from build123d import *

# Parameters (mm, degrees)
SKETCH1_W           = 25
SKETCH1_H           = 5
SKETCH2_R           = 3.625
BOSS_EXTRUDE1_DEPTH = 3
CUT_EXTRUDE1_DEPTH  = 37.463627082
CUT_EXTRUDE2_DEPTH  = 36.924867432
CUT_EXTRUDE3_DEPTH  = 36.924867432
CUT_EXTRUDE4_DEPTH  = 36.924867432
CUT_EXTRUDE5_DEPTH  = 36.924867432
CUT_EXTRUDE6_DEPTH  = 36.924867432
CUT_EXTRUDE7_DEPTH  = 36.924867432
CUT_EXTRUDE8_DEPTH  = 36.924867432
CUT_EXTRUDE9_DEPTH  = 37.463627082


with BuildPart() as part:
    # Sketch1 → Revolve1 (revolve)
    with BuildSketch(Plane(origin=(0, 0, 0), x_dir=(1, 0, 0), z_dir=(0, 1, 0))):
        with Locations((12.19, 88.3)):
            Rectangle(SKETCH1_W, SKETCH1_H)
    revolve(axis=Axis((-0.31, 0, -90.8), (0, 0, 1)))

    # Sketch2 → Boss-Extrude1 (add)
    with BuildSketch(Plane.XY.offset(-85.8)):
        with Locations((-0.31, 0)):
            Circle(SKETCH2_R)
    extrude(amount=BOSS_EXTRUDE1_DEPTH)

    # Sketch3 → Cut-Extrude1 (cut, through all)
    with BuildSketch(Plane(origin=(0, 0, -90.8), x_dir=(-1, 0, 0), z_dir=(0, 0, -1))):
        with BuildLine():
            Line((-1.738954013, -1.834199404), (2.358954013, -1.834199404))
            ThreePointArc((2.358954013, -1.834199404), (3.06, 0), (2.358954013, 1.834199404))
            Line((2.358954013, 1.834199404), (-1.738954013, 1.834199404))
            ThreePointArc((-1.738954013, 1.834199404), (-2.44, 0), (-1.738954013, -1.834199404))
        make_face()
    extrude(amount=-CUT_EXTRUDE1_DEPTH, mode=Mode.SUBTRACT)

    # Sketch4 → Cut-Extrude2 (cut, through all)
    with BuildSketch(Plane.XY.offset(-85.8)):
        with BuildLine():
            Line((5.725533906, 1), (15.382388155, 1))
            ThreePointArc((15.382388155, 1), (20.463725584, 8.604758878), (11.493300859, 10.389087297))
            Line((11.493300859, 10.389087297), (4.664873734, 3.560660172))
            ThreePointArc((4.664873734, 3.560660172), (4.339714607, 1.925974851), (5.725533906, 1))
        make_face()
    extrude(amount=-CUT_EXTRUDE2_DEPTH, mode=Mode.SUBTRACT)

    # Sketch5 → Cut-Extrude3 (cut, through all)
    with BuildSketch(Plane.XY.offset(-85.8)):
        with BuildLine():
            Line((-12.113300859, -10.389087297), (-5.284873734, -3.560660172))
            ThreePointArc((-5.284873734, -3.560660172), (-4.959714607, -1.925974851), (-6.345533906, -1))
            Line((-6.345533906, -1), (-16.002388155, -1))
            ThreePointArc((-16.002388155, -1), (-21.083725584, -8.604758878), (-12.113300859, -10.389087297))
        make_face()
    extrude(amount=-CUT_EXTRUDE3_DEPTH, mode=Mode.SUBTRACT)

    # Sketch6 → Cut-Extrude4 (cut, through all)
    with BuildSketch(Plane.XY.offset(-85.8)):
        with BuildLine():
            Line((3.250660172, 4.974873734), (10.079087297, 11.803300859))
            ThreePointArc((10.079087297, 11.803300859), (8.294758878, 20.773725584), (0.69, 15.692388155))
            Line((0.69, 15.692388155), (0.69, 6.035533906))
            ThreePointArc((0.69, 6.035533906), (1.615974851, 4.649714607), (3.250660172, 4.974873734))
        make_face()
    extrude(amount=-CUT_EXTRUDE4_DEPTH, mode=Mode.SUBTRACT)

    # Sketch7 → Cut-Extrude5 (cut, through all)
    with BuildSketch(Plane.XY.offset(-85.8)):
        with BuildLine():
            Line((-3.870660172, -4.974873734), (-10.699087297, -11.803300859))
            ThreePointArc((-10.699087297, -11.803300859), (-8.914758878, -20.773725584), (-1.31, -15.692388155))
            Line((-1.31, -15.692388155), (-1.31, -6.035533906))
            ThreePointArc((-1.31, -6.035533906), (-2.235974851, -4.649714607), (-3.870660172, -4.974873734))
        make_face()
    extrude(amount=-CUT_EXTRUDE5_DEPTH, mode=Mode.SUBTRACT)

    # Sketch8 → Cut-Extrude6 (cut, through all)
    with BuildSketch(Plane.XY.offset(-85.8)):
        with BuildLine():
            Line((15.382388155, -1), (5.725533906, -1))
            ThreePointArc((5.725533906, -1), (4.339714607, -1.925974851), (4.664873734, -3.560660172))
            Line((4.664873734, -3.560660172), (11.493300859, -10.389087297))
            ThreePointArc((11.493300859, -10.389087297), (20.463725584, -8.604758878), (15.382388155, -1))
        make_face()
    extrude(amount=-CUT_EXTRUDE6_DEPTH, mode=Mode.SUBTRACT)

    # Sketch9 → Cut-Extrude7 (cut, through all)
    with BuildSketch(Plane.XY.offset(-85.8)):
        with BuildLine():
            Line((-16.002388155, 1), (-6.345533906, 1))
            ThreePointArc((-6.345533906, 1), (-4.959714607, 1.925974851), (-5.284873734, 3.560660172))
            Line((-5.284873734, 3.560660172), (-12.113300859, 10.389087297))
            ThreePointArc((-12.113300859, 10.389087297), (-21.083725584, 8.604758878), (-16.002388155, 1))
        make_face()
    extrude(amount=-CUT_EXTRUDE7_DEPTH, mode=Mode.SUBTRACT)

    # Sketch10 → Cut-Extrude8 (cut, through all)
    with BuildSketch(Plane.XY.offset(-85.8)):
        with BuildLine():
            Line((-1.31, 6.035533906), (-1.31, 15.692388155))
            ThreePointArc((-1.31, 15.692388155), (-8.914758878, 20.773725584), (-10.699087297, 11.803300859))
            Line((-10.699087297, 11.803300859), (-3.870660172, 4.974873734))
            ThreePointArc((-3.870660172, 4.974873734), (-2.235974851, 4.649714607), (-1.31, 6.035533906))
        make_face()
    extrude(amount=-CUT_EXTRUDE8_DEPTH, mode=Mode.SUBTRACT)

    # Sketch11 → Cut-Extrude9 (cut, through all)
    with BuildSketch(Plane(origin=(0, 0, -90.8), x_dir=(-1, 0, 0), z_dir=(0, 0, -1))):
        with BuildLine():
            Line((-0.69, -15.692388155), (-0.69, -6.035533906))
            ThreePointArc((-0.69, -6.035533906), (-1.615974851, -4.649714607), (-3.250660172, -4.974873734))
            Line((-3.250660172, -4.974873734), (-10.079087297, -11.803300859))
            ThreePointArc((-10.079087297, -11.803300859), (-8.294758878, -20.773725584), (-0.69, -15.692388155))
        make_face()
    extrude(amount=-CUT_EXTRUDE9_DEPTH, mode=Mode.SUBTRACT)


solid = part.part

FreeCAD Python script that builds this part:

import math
import FreeCAD as App
import Part
import Sketcher

V = App.Vector
Q = App.Units.Quantity


def add_polygon(sketch, points):
    """Adds a closed chain of lines whose ends are joined by coincident constraints."""
    first, n = sketch.GeometryCount, len(points)
    for a, b in zip(points, points[1:] + points[:1]):
        sketch.addGeometry(Part.LineSegment(App.Vector(*a, 0), App.Vector(*b, 0)), False)
    for i in range(n):
        sketch.addConstraint(Sketcher.Constraint("Coincident", first + i, 2, first + (i + 1) % n, 1))

doc = App.newDocument("Part")
body = doc.addObject("PartDesign::Body", "Body")

# Sketch on XZ plane
sketch1 = body.newObject("Sketcher::SketchObject", "Sketch")
sketch1.AttachmentSupport = (doc.getObject("XZ_Plane"), [""])
sketch1.MapMode = "FlatFace"
add_polygon(sketch1, [(-0.31, -90.8), (-0.31, -85.8), (24.69, -85.8), (24.69, -90.8)])  # lines 0-3
sketch1.addGeometry(Part.LineSegment(V(-0.31, -90.8, 0), V(-0.31, -85.8, 0)), True)  # axis
sketch1.addConstraint([
    Sketcher.Constraint("Vertical", 0),
    Sketcher.Constraint("Horizontal", 1),
    Sketcher.Constraint("Vertical", 2),
    Sketcher.Constraint("Horizontal", 3),
    Sketcher.Constraint("Vertical", 4),
    Sketcher.Constraint("Coincident", 4, 1, 3, 2),
    Sketcher.Constraint("Horizontal", 1, 2, 4, 2),
    Sketcher.Constraint("DistanceX", 1, 1, 1, 2, Q("25 mm")),
    Sketcher.Constraint("DistanceY", 0, 1, 0, 2, Q("5 mm")),
    Sketcher.Constraint("DistanceY", 0, 2, -1, 1, Q("85.8 mm")),
    Sketcher.Constraint("DistanceX", 0, 2, -1, 1, Q("0.31 mm")),
])
revolution = body.newObject("PartDesign::Revolution", "Revolution")
revolution.Profile = sketch1
revolution.ReferenceAxis = (sketch1, ["Axis0"])
revolution.Angle = 360

# Sketch on XY plane
sketch2 = body.newObject("Sketcher::SketchObject", "Sketch001")
sketch2.AttachmentSupport = (doc.getObject("XY_Plane"), [""])
sketch2.MapMode = "FlatFace"
sketch2.AttachmentOffset = App.Placement(V(0, 0, -85.8), App.Rotation())
sketch2.addGeometry(Part.Circle(V(-0.31, 0, 0), V(0, 0, 1), 3.625), False)
sketch2.addConstraint([
    Sketcher.Constraint("PointOnObject", 0, 3, -1),
    Sketcher.Constraint("Diameter", 0, Q("7.25 mm")),
    Sketcher.Constraint("DistanceX", 0, 3, -1, 1, Q("0.31 mm")),
])
pad1 = body.newObject("PartDesign::Pad", "Pad")
pad1.Profile = sketch2
pad1.Length = 3

# Sketch on XY plane
sketch3 = body.newObject("Sketcher::SketchObject", "Sketch002")
sketch3.AttachmentSupport = (doc.getObject("XY_Plane"), [""])
sketch3.MapMode = "FlatFace"
sketch3.AttachmentOffset = App.Placement(V(0, 0, -90.8), App.Rotation())
sketch3.addGeometry([
    Part.LineSegment(V(1.738954, -1.834199, 0), V(-2.358954, -1.834199, 0)),
    Part.ArcOfCircle(Part.Circle(V(-0.31, 0, 0), V(0, 0, 1), 2.75), math.radians(138.165471), math.radians(221.834529)),
    Part.LineSegment(V(-2.358954, 1.834199, 0), V(1.738954, 1.834199, 0)),
    Part.ArcOfCircle(Part.Circle(V(-0.31, 0, 0), V(0, 0, 1), 2.75), math.radians(-41.834529), math.radians(41.834529)),
], False)
sketch3.addConstraint([
    Sketcher.Constraint("Coincident", 0, 2, 1, 2),
    Sketcher.Constraint("Coincident", 1, 1, 2, 1),
    Sketcher.Constraint("Coincident", 2, 2, 3, 2),
    Sketcher.Constraint("Coincident", 3, 1, 0, 1),
    Sketcher.Constraint("Horizontal", 0),
    Sketcher.Constraint("Horizontal", 2),
    Sketcher.Constraint("Coincident", 3, 3, 1, 3),
    Sketcher.Constraint("Equal", 1, 3),
    Sketcher.Constraint("Symmetric", 0, 2, 1, 1, -1),
    Sketcher.Constraint("Radius", 1, Q("2.75 mm")),
    Sketcher.Constraint("DistanceX", 1, 3, -1, 1, Q("0.31 mm")),
    Sketcher.Constraint("DistanceX", 0, 2, 0, 1, Q("4.097908 mm")),
])
pocket1 = body.newObject("PartDesign::Pocket", "Pocket")
pocket1.Profile = sketch3
pocket1.Type = "ThroughAll"
pocket1.Reversed = True

# Sketch on XY plane
sketch4 = body.newObject("Sketcher::SketchObject", "Sketch003")
sketch4.AttachmentSupport = (doc.getObject("XY_Plane"), [""])
sketch4.MapMode = "FlatFace"
sketch4.AttachmentOffset = App.Placement(V(0, 0, -85.8), App.Rotation())
sketch4.addGeometry([
    Part.LineSegment(V(5.725534, 1, 0), V(15.382388, 1, 0)),
    Part.ArcOfCircle(Part.Circle(V(15.382388, 6.5, 0), V(0, 0, 1), 5.5), math.radians(-90), math.radians(135)),
    Part.LineSegment(V(11.493301, 10.389087, 0), V(4.664874, 3.56066, 0)),
    Part.ArcOfCircle(Part.Circle(V(5.725534, 2.5, 0), V(0, 0, 1), 1.5), math.radians(135), math.radians(270)),
], False)
sketch4.addConstraint([
    Sketcher.Constraint("Tangent", 0, 2, 1, 1),
    Sketcher.Constraint("Tangent", 1, 2, 2, 1),
    Sketcher.Constraint("Tangent", 2, 2, 3, 1),
    Sketcher.Constraint("Tangent", 3, 2, 0, 1),
    Sketcher.Constraint("Horizontal", 0),
    Sketcher.Constraint("Radius", 1, Q("5.5 mm")),
    Sketcher.Constraint("Radius", 3, Q("1.5 mm")),
    Sketcher.Constraint("Angle", 2, Q("-135 deg")),
    Sketcher.Constraint("DistanceY", -1, 1, 0, 2, Q("1 mm")),
    Sketcher.Constraint("DistanceX", -1, 1, 1, 2, Q("11.493301 mm")),
])
pocket2 = body.newObject("PartDesign::Pocket", "Pocket001")
pocket2.Profile = sketch4
pocket2.Type = "ThroughAll"

# Sketch on XY plane
sketch5 = body.newObject("Sketcher::SketchObject", "Sketch004")
sketch5.AttachmentSupport = (doc.getObject("XY_Plane"), [""])
sketch5.MapMode = "FlatFace"
sketch5.AttachmentOffset = App.Placement(V(0, 0, -85.8), App.Rotation())
sketch5.addGeometry([
    Part.LineSegment(V(-12.113301, -10.389087, 0), V(-5.284874, -3.56066, 0)),
    Part.ArcOfCircle(Part.Circle(V(-6.345534, -2.5, 0), V(0, 0, 1), 1.5), math.radians(-45), math.radians(90)),
    Part.LineSegment(V(-6.345534, -1, 0), V(-16.002388, -1, 0)),
    Part.ArcOfCircle(Part.Circle(V(-16.002388, -6.5, 0), V(0, 0, 1), 5.5), math.radians(90), math.radians(315)),
], False)
sketch5.addConstraint([
    Sketcher.Constraint("Tangent", 0, 2, 1, 1),
    Sketcher.Constraint("Tangent", 1, 2, 2, 1),
    Sketcher.Constraint("Tangent", 2, 2, 3, 1),
    Sketcher.Constraint("Tangent", 3, 2, 0, 1),
    Sketcher.Constraint("Horizontal", 2),
    Sketcher.Constraint("Radius", 1, Q("1.5 mm")),
    Sketcher.Constraint("Radius", 3, Q("5.5 mm")),
    Sketcher.Constraint("Angle", 0, Q("45 deg")),
    Sketcher.Constraint("DistanceY", 1, 2, -1, 1, Q("1 mm")),
    Sketcher.Constraint("DistanceX", 3, 2, -1, 1, Q("12.113301 mm")),
])
pocket3 = body.newObject("PartDesign::Pocket", "Pocket002")
pocket3.Profile = sketch5
pocket3.Type = "ThroughAll"

# Sketch on XY plane
sketch6 = body.newObject("Sketcher::SketchObject", "Sketch005")
sketch6.AttachmentSupport = (doc.getObject("XY_Plane"), [""])
sketch6.MapMode = "FlatFace"
sketch6.AttachmentOffset = App.Placement(V(0, 0, -85.8), App.Rotation())
sketch6.addGeometry([
    Part.LineSegment(V(3.25066, 4.974874, 0), V(10.079087, 11.803301, 0)),
    Part.ArcOfCircle(Part.Circle(V(6.19, 15.692388, 0), V(0, 0, 1), 5.5), math.radians(-45), math.radians(180)),
    Part.LineSegment(V(0.69, 15.692388, 0), V(0.69, 6.035534, 0)),
    Part.ArcOfCircle(Part.Circle(V(2.19, 6.035534, 0), V(0, 0, 1), 1.5), math.radians(180), math.radians(315)),
], False)
sketch6.addConstraint([
    Sketcher.Constraint("Tangent", 0, 2, 1, 1),
    Sketcher.Constraint("Tangent", 1, 2, 2, 1),
    Sketcher.Constraint("Tangent", 2, 2, 3, 1),
    Sketcher.Constraint("Tangent", 3, 2, 0, 1),
    Sketcher.Constraint("Vertical", 2),
    Sketcher.Constraint("Radius", 1, Q("5.5 mm")),
    Sketcher.Constraint("Radius", 3, Q("1.5 mm")),
    Sketcher.Constraint("Angle", 0, Q("45 deg")),
    Sketcher.Constraint("DistanceX", -1, 1, 1, 3, Q("6.19 mm")),
    Sketcher.Constraint("DistanceY", -1, 1, 0, 2, Q("11.803301 mm")),
])
pocket4 = body.newObject("PartDesign::Pocket", "Pocket003")
pocket4.Profile = sketch6
pocket4.Type = "ThroughAll"

# Sketch on XY plane
sketch7 = body.newObject("Sketcher::SketchObject", "Sketch006")
sketch7.AttachmentSupport = (doc.getObject("XY_Plane"), [""])
sketch7.MapMode = "FlatFace"
sketch7.AttachmentOffset = App.Placement(V(0, 0, -85.8), App.Rotation())
sketch7.addGeometry([
    Part.LineSegment(V(-3.87066, -4.974874, 0), V(-10.699087, -11.803301, 0)),
    Part.ArcOfCircle(Part.Circle(V(-6.81, -15.692388, 0), V(0, 0, 1), 5.5), math.radians(135), math.radians(360)),
    Part.LineSegment(V(-1.31, -15.692388, 0), V(-1.31, -6.035534, 0)),
    Part.ArcOfCircle(Part.Circle(V(-2.81, -6.035534, 0), V(0, 0, 1), 1.5), math.radians(0), math.radians(135)),
], False)
sketch7.addConstraint([
    Sketcher.Constraint("Tangent", 0, 2, 1, 1),
    Sketcher.Constraint("Tangent", 1, 2, 2, 1),
    Sketcher.Constraint("Tangent", 2, 2, 3, 1),
    Sketcher.Constraint("Tangent", 3, 2, 0, 1),
    Sketcher.Constraint("Vertical", 2),
    Sketcher.Constraint("Radius", 1, Q("5.5 mm")),
    Sketcher.Constraint("Radius", 3, Q("1.5 mm")),
    Sketcher.Constraint("Angle", 0, Q("-135 deg")),
    Sketcher.Constraint("DistanceX", 1, 3, -1, 1, Q("6.81 mm")),
    Sketcher.Constraint("DistanceY", 0, 2, -1, 1, Q("11.803301 mm")),
])
pocket5 = body.newObject("PartDesign::Pocket", "Pocket004")
pocket5.Profile = sketch7
pocket5.Type = "ThroughAll"

# Sketch on XY plane
sketch8 = body.newObject("Sketcher::SketchObject", "Sketch007")
sketch8.AttachmentSupport = (doc.getObject("XY_Plane"), [""])
sketch8.MapMode = "FlatFace"
sketch8.AttachmentOffset = App.Placement(V(0, 0, -85.8), App.Rotation())
sketch8.addGeometry([
    Part.LineSegment(V(15.382388, -1, 0), V(5.725534, -1, 0)),
    Part.ArcOfCircle(Part.Circle(V(5.725534, -2.5, 0), V(0, 0, 1), 1.5), math.radians(90), math.radians(225)),
    Part.LineSegment(V(4.664874, -3.56066, 0), V(11.493301, -10.389087, 0)),
    Part.ArcOfCircle(Part.Circle(V(15.382388, -6.5, 0), V(0, 0, 1), 5.5), math.radians(-135), math.radians(90)),
], False)
sketch8.addConstraint([
    Sketcher.Constraint("Tangent", 0, 2, 1, 1),
    Sketcher.Constraint("Tangent", 1, 2, 2, 1),
    Sketcher.Constraint("Tangent", 2, 2, 3, 1),
    Sketcher.Constraint("Tangent", 3, 2, 0, 1),
    Sketcher.Constraint("Horizontal", 0),
    Sketcher.Constraint("Radius", 1, Q("1.5 mm")),
    Sketcher.Constraint("Radius", 3, Q("5.5 mm")),
    Sketcher.Constraint("Angle", 2, Q("-45 deg")),
    Sketcher.Constraint("DistanceY", 0, 2, -1, 1, Q("1 mm")),
    Sketcher.Constraint("DistanceX", -1, 1, 2, 2, Q("11.493301 mm")),
])
pocket6 = body.newObject("PartDesign::Pocket", "Pocket005")
pocket6.Profile = sketch8
pocket6.Type = "ThroughAll"

# Sketch on XY plane
sketch9 = body.newObject("Sketcher::SketchObject", "Sketch008")
sketch9.AttachmentSupport = (doc.getObject("XY_Plane"), [""])
sketch9.MapMode = "FlatFace"
sketch9.AttachmentOffset = App.Placement(V(0, 0, -85.8), App.Rotation())
sketch9.addGeometry([
    Part.LineSegment(V(-16.002388, 1, 0), V(-6.345534, 1, 0)),
    Part.ArcOfCircle(Part.Circle(V(-6.345534, 2.5, 0), V(0, 0, 1), 1.5), math.radians(-90), math.radians(45)),
    Part.LineSegment(V(-5.284874, 3.56066, 0), V(-12.113301, 10.389087, 0)),
    Part.ArcOfCircle(Part.Circle(V(-16.002388, 6.5, 0), V(0, 0, 1), 5.5), math.radians(45), math.radians(270)),
], False)
sketch9.addConstraint([
    Sketcher.Constraint("Tangent", 0, 2, 1, 1),
    Sketcher.Constraint("Tangent", 1, 2, 2, 1),
    Sketcher.Constraint("Tangent", 2, 2, 3, 1),
    Sketcher.Constraint("Tangent", 3, 2, 0, 1),
    Sketcher.Constraint("Horizontal", 0),
    Sketcher.Constraint("Radius", 1, Q("1.5 mm")),
    Sketcher.Constraint("Radius", 3, Q("5.5 mm")),
    Sketcher.Constraint("Angle", 2, Q("135 deg")),
    Sketcher.Constraint("DistanceY", -1, 1, 0, 2, Q("1 mm")),
    Sketcher.Constraint("DistanceX", 2, 2, -1, 1, Q("12.113301 mm")),
])
pocket7 = body.newObject("PartDesign::Pocket", "Pocket006")
pocket7.Profile = sketch9
pocket7.Type = "ThroughAll"

# Sketch on XY plane
sketch10 = body.newObject("Sketcher::SketchObject", "Sketch009")
sketch10.AttachmentSupport = (doc.getObject("XY_Plane"), [""])
sketch10.MapMode = "FlatFace"
sketch10.AttachmentOffset = App.Placement(V(0, 0, -85.8), App.Rotation())
sketch10.addGeometry([
    Part.LineSegment(V(-1.31, 6.035534, 0), V(-1.31, 15.692388, 0)),
    Part.ArcOfCircle(Part.Circle(V(-6.81, 15.692388, 0), V(0, 0, 1), 5.5), math.radians(0), math.radians(225)),
    Part.LineSegment(V(-10.699087, 11.803301, 0), V(-3.87066, 4.974874, 0)),
    Part.ArcOfCircle(Part.Circle(V(-2.81, 6.035534, 0), V(0, 0, 1), 1.5), math.radians(-135), math.radians(0)),
], False)
sketch10.addConstraint([
    Sketcher.Constraint("Tangent", 0, 2, 1, 1),
    Sketcher.Constraint("Tangent", 1, 2, 2, 1),
    Sketcher.Constraint("Tangent", 2, 2, 3, 1),
    Sketcher.Constraint("Tangent", 3, 2, 0, 1),
    Sketcher.Constraint("Vertical", 0),
    Sketcher.Constraint("Radius", 1, Q("5.5 mm")),
    Sketcher.Constraint("Radius", 3, Q("1.5 mm")),
    Sketcher.Constraint("Angle", 2, Q("-45 deg")),
    Sketcher.Constraint("DistanceX", 1, 3, -1, 1, Q("6.81 mm")),
    Sketcher.Constraint("DistanceY", -1, 1, 1, 2, Q("11.803301 mm")),
])
pocket8 = body.newObject("PartDesign::Pocket", "Pocket007")
pocket8.Profile = sketch10
pocket8.Type = "ThroughAll"

# Sketch on XY plane
sketch11 = body.newObject("Sketcher::SketchObject", "Sketch010")
sketch11.AttachmentSupport = (doc.getObject("XY_Plane"), [""])
sketch11.MapMode = "FlatFace"
sketch11.AttachmentOffset = App.Placement(V(0, 0, -90.8), App.Rotation())
sketch11.addGeometry([
    Part.LineSegment(V(0.69, -15.692388, 0), V(0.69, -6.035534, 0)),
    Part.ArcOfCircle(Part.Circle(V(2.19, -6.035534, 0), V(0, 0, 1), 1.5), math.radians(45), math.radians(180)),
    Part.LineSegment(V(3.25066, -4.974874, 0), V(10.079087, -11.803301, 0)),
    Part.ArcOfCircle(Part.Circle(V(6.19, -15.692388, 0), V(0, 0, 1), 5.5), math.radians(180), math.radians(405)),
], False)
sketch11.addConstraint([
    Sketcher.Constraint("Tangent", 0, 2, 1, 2),
    Sketcher.Constraint("Tangent", 1, 1, 2, 1),
    Sketcher.Constraint("Tangent", 2, 2, 3, 2),
    Sketcher.Constraint("Tangent", 3, 1, 0, 1),
    Sketcher.Constraint("Vertical", 0),
    Sketcher.Constraint("Radius", 1, Q("1.5 mm")),
    Sketcher.Constraint("Radius", 3, Q("5.5 mm")),
    Sketcher.Constraint("Angle", 2, Q("-45 deg")),
    Sketcher.Constraint("DistanceX", -1, 1, 1, 3, Q("2.19 mm")),
    Sketcher.Constraint("DistanceY", 2, 2, -1, 1, Q("11.803301 mm")),
])
pocket9 = body.newObject("PartDesign::Pocket", "Pocket008")
pocket9.Profile = sketch11
pocket9.Type = "ThroughAll"
pocket9.Reversed = True

doc.recompute()
